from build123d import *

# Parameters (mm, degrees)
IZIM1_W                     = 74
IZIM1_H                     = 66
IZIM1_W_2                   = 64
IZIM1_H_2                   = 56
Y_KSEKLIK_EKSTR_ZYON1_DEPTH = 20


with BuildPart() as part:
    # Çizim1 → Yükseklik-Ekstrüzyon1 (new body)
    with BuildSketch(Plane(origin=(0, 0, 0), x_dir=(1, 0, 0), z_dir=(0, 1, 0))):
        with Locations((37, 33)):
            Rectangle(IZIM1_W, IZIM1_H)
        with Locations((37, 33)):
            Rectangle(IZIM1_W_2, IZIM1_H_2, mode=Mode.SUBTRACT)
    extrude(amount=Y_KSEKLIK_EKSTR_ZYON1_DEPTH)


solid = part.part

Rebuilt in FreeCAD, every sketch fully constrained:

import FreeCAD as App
import Part
import Sketcher

doc = App.newDocument("Part")
body = doc.addObject("PartDesign::Body", "Body")

sketch1 = body.newObject("Sketcher::SketchObject", "Sketch")
sketch1.AttachmentSupport = (doc.getObject("XZ_Plane"), [""])
sketch1.MapMode = "FlatFace"
sketch1.addGeometry([
    Part.LineSegment(App.Vector(0, -66, 0), App.Vector(0, 0, 0)),
    Part.LineSegment(App.Vector(0, 0, 0), App.Vector(74, 0, 0)),
    Part.LineSegment(App.Vector(74, 0, 0), App.Vector(74, -66, 0)),
    Part.LineSegment(App.Vector(74, -66, 0), App.Vector(0, -66, 0)),
    Part.LineSegment(App.Vector(69, -5, 0), App.Vector(5, -5, 0)),
    Part.LineSegment(App.Vector(5, -5, 0), App.Vector(5, -61, 0)),
    Part.LineSegment(App.Vector(5, -61, 0), App.Vector(69, -61, 0)),
    Part.LineSegment(App.Vector(69, -61, 0), App.Vector(69, -5, 0)),
], False)
sketch1.addConstraint([
    Sketcher.Constraint("Coincident", 0, 2, 1, 1),
    Sketcher.Constraint("Coincident", 1, 2, 2, 1),
    Sketcher.Constraint("Coincident", 2, 2, 3, 1),
    Sketcher.Constraint("Coincident", 3, 2, 0, 1),
    Sketcher.Constraint("Coincident", 4, 2, 5, 1),
    Sketcher.Constraint("Coincident", 5, 2, 6, 1),
    Sketcher.Constraint("Coincident", 6, 2, 7, 1),
    Sketcher.Constraint("Coincident", 7, 2, 4, 1),
    Sketcher.Constraint("Vertical", 0),
    Sketcher.Constraint("Horizontal", 1),
    Sketcher.Constraint("Vertical", 2),
    Sketcher.Constraint("Horizontal", 3),
    Sketcher.Constraint("Horizontal", 4),
    Sketcher.Constraint("Vertical", 5),
    Sketcher.Constraint("Horizontal", 6),
    Sketcher.Constraint("Vertical", 7),
    Sketcher.Constraint("Coincident", 0, 2, -1, 1),
    Sketcher.Constraint("DistanceX", 1, 1, 1, 2, 74.0),
    Sketcher.Constraint("DistanceX", 4, 2, 4, 1, 64.0),
    Sketcher.Constraint("DistanceY", 0, 1, 0, 2, 66.0),
    Sketcher.Constraint("DistanceY", 5, 2, 5, 1, 56.0),
    Sketcher.Constraint("DistanceX", -1, 1, 4, 2, 5.0),
    Sketcher.Constraint("DistanceY", 4, 2, -1, 1, 5.0),
])
pad1 = body.newObject("PartDesign::Pad", "Pad")
pad1.Profile = sketch1
pad1.Length = 20
pad1.Reversed = True

doc.recompute()
